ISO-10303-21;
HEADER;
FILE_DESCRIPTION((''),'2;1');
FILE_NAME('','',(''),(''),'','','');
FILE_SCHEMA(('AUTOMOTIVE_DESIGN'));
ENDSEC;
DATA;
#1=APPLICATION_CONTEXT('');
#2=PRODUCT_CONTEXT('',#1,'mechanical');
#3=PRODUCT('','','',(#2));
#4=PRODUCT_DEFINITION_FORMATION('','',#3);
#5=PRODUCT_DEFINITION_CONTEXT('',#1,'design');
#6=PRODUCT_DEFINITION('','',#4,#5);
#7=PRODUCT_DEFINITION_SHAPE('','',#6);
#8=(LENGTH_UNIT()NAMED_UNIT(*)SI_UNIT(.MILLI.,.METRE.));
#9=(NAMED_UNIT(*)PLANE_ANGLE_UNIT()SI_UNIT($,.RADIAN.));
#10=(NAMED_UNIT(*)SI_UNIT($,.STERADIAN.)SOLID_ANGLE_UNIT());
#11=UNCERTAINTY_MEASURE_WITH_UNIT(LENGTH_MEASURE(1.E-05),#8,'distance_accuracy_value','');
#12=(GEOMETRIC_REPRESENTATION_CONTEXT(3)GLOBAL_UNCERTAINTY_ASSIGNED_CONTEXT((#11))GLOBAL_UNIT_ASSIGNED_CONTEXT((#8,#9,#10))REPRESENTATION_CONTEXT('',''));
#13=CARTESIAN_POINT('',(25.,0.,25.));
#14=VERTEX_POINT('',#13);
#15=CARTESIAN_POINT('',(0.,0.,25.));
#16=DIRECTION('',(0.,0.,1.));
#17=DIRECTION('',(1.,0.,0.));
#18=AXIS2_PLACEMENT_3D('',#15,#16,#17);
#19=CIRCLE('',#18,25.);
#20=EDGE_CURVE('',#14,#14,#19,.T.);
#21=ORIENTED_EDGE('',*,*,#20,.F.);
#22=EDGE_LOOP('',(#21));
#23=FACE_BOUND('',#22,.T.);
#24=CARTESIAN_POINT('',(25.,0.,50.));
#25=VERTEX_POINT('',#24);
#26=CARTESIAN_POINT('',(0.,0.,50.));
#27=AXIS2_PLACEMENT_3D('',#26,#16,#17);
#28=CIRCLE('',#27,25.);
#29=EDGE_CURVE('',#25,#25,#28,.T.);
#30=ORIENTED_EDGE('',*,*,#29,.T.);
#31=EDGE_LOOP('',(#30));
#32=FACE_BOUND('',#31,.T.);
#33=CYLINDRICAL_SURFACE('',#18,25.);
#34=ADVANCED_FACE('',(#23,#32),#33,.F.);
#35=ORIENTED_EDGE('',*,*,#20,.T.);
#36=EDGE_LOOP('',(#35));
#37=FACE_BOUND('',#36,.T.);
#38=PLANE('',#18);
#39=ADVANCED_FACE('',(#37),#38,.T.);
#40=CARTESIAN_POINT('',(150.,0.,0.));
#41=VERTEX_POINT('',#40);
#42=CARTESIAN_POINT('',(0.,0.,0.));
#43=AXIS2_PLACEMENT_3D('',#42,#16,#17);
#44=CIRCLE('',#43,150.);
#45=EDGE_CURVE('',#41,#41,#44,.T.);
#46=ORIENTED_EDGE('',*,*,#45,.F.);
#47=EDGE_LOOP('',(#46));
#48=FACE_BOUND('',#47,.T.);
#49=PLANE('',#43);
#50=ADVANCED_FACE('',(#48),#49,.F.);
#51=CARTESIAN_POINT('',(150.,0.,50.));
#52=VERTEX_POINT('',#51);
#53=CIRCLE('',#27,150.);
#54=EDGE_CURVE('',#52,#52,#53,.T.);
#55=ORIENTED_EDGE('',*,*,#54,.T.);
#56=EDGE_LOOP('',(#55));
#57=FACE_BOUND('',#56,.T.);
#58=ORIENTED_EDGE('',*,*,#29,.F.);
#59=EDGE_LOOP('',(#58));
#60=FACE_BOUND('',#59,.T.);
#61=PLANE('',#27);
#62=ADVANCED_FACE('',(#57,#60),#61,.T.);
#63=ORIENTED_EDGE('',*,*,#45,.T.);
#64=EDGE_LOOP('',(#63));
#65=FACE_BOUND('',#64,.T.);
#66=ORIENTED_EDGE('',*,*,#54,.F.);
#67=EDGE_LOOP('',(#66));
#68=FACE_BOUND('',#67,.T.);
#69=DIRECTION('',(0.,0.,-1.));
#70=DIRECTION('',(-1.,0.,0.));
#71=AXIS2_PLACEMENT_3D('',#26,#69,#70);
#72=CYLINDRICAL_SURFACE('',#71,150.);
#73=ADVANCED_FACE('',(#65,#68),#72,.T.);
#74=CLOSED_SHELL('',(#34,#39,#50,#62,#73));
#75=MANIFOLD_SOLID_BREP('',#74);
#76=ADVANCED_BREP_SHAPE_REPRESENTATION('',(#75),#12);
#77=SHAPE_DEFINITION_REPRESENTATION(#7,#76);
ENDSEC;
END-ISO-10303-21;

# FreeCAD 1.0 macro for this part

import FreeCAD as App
import Part
import Sketcher

V = App.Vector
Q = App.Units.Quantity

doc = App.newDocument("Part")
params = doc.addObject("Spreadsheet::Sheet", "Params")
for row, (alias, value) in enumerate([
    ("sketch1_diameter", "300 mm"),
    ("pad1_length", "50 mm"),
    ("sketch2_diameter", "50 mm"),
    ("pocket1_length", "25 mm"),
], start=1):
    params.set(f"A{row}", alias)
    params.set(f"B{row}", "=" + value)
    params.setAlias(f"B{row}", alias)

body = doc.addObject("PartDesign::Body", "Body")

sketch1 = body.newObject("Sketcher::SketchObject", "Sketch")
sketch1.AttachmentSupport = (doc.getObject("XY_Plane"), [""])
sketch1.MapMode = "FlatFace"
sketch1.addGeometry(Part.Circle(V(0, 0, 0), V(0, 0, 1), 150), False)
sketch1.addConstraint(Sketcher.Constraint("Coincident", 0, 3, -1, 1))
sketch1.addConstraint(Sketcher.Constraint("Diameter", 0, Q("300 mm")))
sketch1.setExpression("Constraints[1]", "Params.sketch1_diameter")
pad1 = body.newObject("PartDesign::Pad", "Pad")
pad1.Profile = sketch1
pad1.setExpression("Length", "Params.pad1_length")

sketch2 = body.newObject("Sketcher::SketchObject", "Sketch001")
sketch2.AttachmentSupport = (doc.getObject("XY_Plane"), [""])
sketch2.MapMode = "FlatFace"
sketch2.AttachmentOffset = App.Placement(V(0, 0, 50), App.Rotation())
sketch2.addGeometry(Part.Circle(V(0, 0, 0), V(0, 0, 1), 25), False)
sketch2.addConstraint(Sketcher.Constraint("Coincident", 0, 3, -1, 1))
sketch2.addConstraint(Sketcher.Constraint("Diameter", 0, Q("50 mm")))
sketch2.setExpression("Constraints[1]", "Params.sketch2_diameter")
pocket1 = body.newObject("PartDesign::Pocket", "Pocket")
pocket1.Profile = sketch2
pocket1.setExpression("Length", "Params.pocket1_length")

doc.recompute()
